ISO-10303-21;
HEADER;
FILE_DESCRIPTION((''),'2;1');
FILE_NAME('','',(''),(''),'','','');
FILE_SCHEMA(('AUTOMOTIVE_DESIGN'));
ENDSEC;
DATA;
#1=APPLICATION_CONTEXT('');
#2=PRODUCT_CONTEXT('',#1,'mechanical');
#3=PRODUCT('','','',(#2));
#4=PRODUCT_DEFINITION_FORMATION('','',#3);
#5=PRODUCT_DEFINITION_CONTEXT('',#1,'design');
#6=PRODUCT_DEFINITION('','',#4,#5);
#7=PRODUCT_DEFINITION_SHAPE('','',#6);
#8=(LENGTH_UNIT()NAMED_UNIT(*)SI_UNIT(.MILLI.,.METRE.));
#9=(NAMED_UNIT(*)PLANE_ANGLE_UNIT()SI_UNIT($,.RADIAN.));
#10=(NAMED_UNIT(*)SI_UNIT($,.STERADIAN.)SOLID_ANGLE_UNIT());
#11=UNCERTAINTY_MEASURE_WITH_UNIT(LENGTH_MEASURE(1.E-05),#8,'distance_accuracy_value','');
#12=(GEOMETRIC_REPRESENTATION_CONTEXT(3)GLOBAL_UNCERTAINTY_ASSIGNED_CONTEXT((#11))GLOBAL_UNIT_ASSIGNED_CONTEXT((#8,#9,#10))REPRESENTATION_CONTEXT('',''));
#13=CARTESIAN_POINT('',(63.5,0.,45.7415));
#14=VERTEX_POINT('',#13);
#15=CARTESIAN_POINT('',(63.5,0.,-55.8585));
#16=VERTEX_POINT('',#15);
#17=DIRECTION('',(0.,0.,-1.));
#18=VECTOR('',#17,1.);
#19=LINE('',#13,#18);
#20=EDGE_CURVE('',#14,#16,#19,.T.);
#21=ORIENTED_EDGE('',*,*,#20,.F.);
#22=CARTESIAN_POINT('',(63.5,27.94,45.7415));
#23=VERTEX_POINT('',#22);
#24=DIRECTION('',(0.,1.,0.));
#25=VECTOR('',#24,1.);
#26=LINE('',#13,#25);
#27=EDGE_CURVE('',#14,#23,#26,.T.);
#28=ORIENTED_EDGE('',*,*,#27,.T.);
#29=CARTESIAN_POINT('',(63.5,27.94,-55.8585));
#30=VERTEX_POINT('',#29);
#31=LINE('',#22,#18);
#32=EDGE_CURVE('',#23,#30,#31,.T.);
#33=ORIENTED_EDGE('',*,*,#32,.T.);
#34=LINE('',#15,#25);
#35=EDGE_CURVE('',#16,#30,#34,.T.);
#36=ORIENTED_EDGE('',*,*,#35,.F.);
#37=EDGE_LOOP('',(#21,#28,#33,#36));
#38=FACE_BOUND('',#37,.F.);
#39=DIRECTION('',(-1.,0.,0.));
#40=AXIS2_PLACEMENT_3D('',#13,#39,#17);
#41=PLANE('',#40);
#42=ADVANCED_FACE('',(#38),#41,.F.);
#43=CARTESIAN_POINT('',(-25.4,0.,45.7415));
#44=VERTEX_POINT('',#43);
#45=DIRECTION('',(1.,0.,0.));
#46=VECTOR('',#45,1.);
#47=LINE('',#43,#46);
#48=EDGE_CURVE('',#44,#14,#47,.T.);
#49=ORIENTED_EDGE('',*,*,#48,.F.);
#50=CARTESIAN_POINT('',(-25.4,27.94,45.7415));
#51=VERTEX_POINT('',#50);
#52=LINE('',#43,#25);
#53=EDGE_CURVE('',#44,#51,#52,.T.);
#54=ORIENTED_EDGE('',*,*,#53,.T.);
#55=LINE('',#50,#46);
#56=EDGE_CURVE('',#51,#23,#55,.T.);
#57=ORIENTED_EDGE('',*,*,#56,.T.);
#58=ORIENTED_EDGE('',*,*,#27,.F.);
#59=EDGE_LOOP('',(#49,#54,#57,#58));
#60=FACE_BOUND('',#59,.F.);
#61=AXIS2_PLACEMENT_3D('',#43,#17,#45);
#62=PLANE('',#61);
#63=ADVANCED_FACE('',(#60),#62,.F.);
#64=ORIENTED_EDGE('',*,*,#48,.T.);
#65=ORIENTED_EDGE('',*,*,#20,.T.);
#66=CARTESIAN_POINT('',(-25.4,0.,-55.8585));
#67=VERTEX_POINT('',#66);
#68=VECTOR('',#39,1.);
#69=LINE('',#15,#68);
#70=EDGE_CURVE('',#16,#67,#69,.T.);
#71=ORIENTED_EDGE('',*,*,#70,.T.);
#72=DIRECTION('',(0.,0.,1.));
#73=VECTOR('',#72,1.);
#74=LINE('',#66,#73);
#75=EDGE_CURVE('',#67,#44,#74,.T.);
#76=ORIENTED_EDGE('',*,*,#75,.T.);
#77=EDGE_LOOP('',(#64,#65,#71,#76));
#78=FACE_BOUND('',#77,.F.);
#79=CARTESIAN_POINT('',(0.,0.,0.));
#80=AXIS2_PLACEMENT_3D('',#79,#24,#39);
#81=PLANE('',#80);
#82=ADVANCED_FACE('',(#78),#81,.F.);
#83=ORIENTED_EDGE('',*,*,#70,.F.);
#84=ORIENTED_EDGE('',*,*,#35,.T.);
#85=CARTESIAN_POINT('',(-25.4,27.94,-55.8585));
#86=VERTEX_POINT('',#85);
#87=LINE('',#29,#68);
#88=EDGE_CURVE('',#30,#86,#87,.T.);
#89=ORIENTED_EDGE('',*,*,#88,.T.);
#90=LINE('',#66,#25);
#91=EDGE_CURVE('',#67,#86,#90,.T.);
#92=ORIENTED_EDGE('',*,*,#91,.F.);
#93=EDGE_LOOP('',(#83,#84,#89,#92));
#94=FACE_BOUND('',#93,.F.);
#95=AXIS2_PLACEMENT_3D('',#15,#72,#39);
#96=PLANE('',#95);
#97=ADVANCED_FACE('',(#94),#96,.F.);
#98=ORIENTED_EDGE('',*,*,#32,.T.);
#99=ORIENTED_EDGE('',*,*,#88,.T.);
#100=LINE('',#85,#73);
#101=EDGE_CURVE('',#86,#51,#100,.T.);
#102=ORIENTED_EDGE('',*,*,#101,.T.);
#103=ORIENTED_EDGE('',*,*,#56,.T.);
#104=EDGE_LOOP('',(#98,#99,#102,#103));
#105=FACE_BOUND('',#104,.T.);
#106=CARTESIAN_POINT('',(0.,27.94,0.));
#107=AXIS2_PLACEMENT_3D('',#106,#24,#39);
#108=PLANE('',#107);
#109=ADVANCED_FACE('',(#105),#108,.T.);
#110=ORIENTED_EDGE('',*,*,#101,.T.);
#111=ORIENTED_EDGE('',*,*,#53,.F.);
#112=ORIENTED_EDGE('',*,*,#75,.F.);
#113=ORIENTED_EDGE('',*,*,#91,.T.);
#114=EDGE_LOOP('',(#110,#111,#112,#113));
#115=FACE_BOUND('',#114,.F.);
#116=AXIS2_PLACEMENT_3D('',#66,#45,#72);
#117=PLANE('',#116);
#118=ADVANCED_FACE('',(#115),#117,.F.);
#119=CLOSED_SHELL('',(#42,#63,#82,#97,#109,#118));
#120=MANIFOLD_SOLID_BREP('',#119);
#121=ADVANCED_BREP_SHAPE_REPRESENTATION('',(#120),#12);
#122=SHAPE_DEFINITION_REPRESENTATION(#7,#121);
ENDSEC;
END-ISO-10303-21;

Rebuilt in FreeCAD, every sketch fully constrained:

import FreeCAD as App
import Part
import Sketcher
from FreeCAD import Vector
Q = App.Units.Quantity


def add_polygon(sketch, points):
    """Adds a closed chain of lines whose ends are joined by coincident constraints."""
    first, n = sketch.GeometryCount, len(points)
    for a, b in zip(points, points[1:] + points[:1]):
        sketch.addGeometry(Part.LineSegment(App.Vector(*a, 0), App.Vector(*b, 0)), False)
    for i in range(n):
        sketch.addConstraint(Sketcher.Constraint("Coincident", first + i, 2, first + (i + 1) % n, 1))

doc = App.newDocument("Part")
body = doc.addObject("PartDesign::Body", "Body")

# Sketch on XZ plane
sketch1 = body.newObject("Sketcher::SketchObject", "Sketch")
sketch1.AttachmentSupport = (doc.getObject("XZ_Plane"), [""])
sketch1.MapMode = "FlatFace"
add_polygon(sketch1, [(-25, -56), (-25, 46), (64, 46), (64, -56)])  # lines 0-3
sketch1.addConstraint(Sketcher.Constraint("Vertical", 0))
sketch1.addConstraint(Sketcher.Constraint("Horizontal", 1))
sketch1.addConstraint(Sketcher.Constraint("Vertical", 2))
sketch1.addConstraint(Sketcher.Constraint("Horizontal", 3))
sketch1.addConstraint(Sketcher.Constraint("DistanceY", 0, 1, 0, 2, Q("4 in")))
sketch1.addConstraint(Sketcher.Constraint("DistanceX", 1, 1, 1, 2, Q("3.5 in")))
sketch1.addConstraint(Sketcher.Constraint("DistanceX", 0, 2, -1, 1, Q("1 in")))
sketch1.addConstraint(Sketcher.Constraint("DistanceY", -1, 1, 0, 2, 45.7415))
pad1 = body.newObject("PartDesign::Pad", "Pad")
pad1.Profile = sketch1
pad1.Length = Q("1.1 in")
pad1.Reversed = True

doc.recompute()
